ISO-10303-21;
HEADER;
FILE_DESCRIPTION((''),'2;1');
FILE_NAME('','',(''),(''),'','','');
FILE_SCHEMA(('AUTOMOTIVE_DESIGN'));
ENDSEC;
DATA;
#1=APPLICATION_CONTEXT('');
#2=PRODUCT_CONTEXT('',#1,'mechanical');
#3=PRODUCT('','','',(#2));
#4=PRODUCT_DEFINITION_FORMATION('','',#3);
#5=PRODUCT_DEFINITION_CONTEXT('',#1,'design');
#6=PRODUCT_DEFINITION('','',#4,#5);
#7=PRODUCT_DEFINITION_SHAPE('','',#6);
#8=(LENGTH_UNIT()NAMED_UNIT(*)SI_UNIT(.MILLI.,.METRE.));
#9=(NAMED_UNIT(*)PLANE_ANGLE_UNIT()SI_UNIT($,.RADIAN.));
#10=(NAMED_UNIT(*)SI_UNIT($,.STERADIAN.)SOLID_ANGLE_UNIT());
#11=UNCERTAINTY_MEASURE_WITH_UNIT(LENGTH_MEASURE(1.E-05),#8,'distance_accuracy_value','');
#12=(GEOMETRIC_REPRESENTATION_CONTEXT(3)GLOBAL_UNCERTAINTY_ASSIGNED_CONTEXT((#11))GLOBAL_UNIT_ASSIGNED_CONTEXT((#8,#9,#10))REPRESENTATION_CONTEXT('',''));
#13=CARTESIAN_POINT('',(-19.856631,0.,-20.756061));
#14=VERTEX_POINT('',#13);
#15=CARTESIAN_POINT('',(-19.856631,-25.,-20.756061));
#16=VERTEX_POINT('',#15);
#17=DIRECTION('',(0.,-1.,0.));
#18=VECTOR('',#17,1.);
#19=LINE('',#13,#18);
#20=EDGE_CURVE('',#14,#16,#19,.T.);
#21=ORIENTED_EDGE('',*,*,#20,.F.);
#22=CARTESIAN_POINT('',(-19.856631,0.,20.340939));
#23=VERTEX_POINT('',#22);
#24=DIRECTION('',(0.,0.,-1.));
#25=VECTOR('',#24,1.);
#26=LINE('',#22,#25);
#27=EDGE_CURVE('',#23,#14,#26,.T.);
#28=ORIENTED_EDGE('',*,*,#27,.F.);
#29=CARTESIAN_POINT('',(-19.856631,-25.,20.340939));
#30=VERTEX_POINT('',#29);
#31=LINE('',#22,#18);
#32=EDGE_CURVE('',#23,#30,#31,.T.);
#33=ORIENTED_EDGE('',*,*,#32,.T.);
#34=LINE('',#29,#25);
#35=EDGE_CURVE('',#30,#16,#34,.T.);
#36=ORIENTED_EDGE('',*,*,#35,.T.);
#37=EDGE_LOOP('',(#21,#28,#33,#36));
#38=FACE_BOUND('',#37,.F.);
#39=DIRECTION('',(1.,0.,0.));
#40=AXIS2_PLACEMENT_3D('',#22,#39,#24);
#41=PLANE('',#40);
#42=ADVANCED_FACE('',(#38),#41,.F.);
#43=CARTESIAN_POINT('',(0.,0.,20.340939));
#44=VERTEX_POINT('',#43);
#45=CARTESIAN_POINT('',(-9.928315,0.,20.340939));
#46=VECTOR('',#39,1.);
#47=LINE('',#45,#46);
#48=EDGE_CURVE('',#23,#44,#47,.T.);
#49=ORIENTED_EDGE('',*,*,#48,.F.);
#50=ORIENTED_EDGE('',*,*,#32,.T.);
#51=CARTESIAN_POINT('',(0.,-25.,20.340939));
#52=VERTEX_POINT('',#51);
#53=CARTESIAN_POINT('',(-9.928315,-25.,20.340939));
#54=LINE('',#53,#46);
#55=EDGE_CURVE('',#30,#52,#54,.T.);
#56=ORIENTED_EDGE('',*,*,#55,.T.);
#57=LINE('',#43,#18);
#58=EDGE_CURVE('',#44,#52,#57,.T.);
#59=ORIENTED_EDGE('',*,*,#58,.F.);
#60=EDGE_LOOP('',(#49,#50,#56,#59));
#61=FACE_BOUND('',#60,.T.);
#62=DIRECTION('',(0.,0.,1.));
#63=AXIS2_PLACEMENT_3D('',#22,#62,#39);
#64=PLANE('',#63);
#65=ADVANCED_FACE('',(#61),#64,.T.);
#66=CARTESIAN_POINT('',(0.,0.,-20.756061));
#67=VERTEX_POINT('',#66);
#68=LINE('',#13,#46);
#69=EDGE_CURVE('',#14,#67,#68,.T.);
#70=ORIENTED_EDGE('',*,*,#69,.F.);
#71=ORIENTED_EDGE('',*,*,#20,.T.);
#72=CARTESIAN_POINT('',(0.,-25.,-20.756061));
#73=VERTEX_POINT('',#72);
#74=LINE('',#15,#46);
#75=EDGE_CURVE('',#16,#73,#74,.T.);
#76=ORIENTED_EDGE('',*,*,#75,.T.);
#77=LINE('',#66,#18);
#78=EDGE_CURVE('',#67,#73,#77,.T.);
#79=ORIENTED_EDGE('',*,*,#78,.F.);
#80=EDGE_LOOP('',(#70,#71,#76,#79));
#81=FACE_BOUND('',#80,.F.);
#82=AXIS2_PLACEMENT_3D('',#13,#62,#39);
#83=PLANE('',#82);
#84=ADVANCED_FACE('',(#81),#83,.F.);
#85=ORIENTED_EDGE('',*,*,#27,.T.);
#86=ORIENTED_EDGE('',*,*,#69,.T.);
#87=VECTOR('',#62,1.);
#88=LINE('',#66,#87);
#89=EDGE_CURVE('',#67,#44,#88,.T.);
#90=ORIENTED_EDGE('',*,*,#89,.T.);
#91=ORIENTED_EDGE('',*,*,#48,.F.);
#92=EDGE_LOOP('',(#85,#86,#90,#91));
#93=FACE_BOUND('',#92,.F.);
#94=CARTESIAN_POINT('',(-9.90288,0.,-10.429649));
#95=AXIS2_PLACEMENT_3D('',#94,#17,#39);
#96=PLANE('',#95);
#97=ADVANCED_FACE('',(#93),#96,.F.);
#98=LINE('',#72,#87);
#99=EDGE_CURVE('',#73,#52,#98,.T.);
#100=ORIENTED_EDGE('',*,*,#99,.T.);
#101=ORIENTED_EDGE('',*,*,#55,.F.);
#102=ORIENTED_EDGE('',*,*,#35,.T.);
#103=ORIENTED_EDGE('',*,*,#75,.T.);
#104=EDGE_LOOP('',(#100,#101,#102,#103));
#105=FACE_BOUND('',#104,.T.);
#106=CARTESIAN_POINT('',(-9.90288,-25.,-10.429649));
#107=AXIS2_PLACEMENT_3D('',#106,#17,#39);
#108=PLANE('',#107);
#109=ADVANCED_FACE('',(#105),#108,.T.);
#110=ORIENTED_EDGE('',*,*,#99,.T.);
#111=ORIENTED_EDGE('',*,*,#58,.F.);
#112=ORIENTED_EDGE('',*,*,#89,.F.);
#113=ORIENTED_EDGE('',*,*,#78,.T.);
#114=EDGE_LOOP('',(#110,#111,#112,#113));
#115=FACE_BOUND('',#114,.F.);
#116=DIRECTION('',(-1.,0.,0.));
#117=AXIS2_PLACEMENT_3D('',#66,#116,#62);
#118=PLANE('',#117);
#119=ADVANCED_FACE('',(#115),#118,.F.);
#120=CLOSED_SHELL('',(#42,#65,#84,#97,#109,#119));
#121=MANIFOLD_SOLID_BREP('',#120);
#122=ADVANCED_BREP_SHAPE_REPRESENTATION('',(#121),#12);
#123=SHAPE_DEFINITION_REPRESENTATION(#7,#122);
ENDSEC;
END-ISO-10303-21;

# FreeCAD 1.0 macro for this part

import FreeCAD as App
import Part
import Sketcher
from FreeCAD import Vector


def add_polygon(sketch, points):
    """Adds a closed chain of lines whose ends are joined by coincident constraints."""
    first, n = sketch.GeometryCount, len(points)
    for a, b in zip(points, points[1:] + points[:1]):
        sketch.addGeometry(Part.LineSegment(App.Vector(*a, 0), App.Vector(*b, 0)), False)
    for i in range(n):
        sketch.addConstraint(Sketcher.Constraint("Coincident", first + i, 2, first + (i + 1) % n, 1))

doc = App.newDocument("Part")
body = doc.addObject("PartDesign::Body", "Body")

# Sketch on XZ plane
sketch1 = doc.addObject("Sketcher::SketchObject", "Sketch")
body.addObject(sketch1)
sketch1.AttachmentSupport = (doc.XZ_Plane, [""])
sketch1.MapMode = "FlatFace"
add_polygon(sketch1, [(0, -21), (0, 20), (-20, 20), (-20, -21)])  # lines 0-3
sketch1.addConstraint([
    Sketcher.Constraint("Vertical", 0),
    Sketcher.Constraint("Horizontal", 1),
    Sketcher.Constraint("Vertical", 2),
    Sketcher.Constraint("Horizontal", 3),
    Sketcher.Constraint("PointOnObject", 0, 2, -2),
    Sketcher.Constraint("DistanceY", 0, 1, 0, 2, 41.097),
    Sketcher.Constraint("DistanceX", 1, 2, 1, 1, 19.856631),
    Sketcher.Constraint("DistanceY", -1, 1, 0, 2, 20.340939),
])
pad1 = doc.addObject("PartDesign::Pad", "Pad")
body.addObject(pad1)
pad1.Profile = sketch1
pad1.Length = 25

doc.recompute()
